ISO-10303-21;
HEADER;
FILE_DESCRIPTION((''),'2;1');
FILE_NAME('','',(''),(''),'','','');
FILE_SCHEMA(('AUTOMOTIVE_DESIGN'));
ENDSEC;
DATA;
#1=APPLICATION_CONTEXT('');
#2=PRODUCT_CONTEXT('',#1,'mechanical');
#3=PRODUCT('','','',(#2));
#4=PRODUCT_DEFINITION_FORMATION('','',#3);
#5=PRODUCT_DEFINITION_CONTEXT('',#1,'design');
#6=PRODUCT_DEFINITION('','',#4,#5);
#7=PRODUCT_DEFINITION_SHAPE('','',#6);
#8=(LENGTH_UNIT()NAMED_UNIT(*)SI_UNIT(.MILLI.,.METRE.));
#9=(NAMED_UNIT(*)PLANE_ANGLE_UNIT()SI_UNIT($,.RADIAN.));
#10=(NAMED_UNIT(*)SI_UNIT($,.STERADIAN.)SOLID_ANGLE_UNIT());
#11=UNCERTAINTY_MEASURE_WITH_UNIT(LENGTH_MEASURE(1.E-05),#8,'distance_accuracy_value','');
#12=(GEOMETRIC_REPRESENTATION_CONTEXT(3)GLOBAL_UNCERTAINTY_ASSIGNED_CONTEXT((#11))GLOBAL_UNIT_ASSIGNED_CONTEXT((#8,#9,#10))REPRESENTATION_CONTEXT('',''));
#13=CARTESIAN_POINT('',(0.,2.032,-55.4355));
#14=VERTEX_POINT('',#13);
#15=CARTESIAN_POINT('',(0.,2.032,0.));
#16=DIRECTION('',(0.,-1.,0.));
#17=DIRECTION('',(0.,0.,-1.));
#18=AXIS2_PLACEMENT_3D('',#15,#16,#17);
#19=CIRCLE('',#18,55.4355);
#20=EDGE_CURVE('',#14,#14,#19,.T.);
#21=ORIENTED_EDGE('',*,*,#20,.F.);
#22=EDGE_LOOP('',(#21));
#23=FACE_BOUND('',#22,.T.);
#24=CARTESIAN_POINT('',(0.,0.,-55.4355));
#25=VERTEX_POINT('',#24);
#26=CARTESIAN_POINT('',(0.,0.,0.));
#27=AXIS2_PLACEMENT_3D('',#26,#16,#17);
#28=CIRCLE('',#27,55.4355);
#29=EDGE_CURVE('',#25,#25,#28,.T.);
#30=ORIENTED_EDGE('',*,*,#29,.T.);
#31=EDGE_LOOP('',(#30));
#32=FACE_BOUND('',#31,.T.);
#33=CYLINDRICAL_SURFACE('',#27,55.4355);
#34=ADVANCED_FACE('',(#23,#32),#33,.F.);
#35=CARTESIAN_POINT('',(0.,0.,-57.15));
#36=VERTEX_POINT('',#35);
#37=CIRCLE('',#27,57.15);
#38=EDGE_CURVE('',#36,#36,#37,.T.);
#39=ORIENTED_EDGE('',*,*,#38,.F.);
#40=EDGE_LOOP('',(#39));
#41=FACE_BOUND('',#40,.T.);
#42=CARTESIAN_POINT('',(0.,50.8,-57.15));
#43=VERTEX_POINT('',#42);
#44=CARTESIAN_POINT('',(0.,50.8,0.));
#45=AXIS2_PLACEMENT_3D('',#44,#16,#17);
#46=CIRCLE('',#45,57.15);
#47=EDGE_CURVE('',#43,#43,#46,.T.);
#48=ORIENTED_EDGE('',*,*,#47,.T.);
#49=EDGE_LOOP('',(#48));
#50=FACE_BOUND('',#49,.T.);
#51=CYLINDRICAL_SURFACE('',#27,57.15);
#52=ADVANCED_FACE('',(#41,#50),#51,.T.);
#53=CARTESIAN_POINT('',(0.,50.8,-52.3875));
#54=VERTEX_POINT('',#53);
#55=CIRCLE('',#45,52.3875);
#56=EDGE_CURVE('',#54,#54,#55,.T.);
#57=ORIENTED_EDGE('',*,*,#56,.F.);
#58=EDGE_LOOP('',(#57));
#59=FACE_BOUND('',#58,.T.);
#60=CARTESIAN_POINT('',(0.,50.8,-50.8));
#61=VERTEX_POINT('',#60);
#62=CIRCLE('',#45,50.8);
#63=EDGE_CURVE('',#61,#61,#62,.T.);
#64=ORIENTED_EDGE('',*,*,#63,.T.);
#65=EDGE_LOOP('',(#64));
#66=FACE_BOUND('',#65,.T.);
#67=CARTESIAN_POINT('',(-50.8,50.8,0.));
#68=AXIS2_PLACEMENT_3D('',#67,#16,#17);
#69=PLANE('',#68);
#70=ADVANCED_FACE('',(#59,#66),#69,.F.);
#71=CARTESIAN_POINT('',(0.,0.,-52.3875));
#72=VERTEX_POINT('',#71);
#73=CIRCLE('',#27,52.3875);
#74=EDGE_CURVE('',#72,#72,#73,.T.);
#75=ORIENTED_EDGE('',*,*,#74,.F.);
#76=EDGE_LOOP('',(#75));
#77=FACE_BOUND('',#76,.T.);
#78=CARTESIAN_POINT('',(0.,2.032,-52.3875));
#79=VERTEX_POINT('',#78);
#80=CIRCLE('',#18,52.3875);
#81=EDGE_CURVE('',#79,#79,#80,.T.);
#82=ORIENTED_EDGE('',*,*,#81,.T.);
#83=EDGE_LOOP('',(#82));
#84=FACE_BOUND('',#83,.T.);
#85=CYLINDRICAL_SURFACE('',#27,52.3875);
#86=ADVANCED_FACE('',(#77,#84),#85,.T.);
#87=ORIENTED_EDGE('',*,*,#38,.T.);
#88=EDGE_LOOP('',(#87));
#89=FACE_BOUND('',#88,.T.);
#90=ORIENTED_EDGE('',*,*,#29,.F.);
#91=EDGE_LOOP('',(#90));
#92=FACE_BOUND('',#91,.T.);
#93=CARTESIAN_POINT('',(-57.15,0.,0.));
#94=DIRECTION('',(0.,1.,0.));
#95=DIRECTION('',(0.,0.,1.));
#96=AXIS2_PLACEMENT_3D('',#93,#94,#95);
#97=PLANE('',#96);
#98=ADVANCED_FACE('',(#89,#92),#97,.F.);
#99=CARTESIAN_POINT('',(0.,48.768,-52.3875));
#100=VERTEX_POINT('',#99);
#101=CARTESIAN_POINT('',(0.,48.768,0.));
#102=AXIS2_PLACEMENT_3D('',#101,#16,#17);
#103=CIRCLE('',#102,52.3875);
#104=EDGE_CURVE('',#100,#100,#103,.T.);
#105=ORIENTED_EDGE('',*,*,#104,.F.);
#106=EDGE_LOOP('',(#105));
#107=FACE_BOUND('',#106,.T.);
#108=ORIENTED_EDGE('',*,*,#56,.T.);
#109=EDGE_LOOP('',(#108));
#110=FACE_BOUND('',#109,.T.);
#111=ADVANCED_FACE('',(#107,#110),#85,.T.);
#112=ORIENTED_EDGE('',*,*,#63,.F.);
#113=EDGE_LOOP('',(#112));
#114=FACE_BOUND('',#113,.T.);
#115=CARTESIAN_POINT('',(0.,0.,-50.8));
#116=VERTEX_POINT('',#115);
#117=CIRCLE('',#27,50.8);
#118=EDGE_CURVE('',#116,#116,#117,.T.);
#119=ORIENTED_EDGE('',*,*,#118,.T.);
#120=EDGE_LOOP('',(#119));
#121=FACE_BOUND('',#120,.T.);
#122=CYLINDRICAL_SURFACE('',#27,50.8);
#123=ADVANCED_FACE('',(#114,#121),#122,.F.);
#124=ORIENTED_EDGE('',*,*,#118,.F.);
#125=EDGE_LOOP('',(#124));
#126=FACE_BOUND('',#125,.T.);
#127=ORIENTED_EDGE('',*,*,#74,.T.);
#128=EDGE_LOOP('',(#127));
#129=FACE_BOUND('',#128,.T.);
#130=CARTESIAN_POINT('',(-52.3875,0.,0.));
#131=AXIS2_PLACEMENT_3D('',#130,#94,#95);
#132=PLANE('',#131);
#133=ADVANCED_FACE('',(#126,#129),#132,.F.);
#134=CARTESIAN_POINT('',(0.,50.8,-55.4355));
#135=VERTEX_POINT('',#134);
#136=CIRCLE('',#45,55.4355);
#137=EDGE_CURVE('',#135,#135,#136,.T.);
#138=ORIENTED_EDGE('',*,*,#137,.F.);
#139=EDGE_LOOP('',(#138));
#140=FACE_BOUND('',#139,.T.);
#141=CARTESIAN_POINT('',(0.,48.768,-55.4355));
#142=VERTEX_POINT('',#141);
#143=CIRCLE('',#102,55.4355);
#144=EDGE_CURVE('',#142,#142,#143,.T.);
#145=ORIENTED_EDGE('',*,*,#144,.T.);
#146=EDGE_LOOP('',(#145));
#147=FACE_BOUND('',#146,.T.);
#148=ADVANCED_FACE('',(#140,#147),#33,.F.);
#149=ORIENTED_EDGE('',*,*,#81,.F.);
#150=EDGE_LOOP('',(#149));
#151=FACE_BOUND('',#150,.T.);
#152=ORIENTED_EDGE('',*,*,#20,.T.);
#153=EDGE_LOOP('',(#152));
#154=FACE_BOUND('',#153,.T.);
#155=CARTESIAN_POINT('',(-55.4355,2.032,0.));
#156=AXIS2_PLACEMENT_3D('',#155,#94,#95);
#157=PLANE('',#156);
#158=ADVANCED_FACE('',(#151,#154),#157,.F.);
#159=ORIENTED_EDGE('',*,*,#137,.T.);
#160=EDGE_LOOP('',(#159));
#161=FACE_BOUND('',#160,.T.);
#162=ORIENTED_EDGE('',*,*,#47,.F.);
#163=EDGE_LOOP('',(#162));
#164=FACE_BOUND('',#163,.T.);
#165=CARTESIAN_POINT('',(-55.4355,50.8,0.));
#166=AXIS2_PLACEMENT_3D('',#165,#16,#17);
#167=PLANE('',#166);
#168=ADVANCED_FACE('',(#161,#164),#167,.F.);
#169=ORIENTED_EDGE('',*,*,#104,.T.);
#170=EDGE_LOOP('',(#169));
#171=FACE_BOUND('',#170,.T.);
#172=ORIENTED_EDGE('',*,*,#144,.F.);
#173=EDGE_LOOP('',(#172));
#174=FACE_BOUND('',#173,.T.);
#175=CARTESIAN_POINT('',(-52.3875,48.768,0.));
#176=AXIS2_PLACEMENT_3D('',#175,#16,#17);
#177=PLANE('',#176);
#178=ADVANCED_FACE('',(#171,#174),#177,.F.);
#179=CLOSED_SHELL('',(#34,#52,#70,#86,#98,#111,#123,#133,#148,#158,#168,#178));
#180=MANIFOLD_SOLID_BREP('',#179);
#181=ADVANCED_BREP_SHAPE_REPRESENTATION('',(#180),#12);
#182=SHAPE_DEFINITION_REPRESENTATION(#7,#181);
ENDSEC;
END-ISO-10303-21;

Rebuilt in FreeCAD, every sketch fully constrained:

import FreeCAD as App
import Part
import Sketcher

V = App.Vector
Q = App.Units.Quantity

doc = App.newDocument("Part")
body = doc.addObject("PartDesign::Body", "Body")

# Sketch on XY plane
sketch1 = body.newObject("Sketcher::SketchObject", "Sketch")
sketch1.AttachmentSupport = (doc.getObject("XY_Plane"), [""])
sketch1.MapMode = "FlatFace"
sketch1.addGeometry([
    Part.LineSegment(V(-50.8, 0, 0), V(-50.8, 50.8, 0)),  # 0
    Part.LineSegment(V(-50.8, 50.8, 0), V(-52.4, 50.8, 0)),  # 1
    Part.LineSegment(V(-52.4, 50.8, 0), V(-52.4, 48.8, 0)),  # 2
    Part.LineSegment(V(-52.4, 48.8, 0), V(-55.4, 48.8, 0)),  # 3
    Part.LineSegment(V(-55.4, 48.8, 0), V(-55.4, 50.8, 0)),  # 4
    Part.LineSegment(V(-55.4, 50.8, 0), V(-57.1, 50.8, 0)),  # 5
    Part.LineSegment(V(-57.1, 50.8, 0), V(-57.1, 0, 0)),  # 6
    Part.LineSegment(V(-57.1, 0, 0), V(-55.4, 0, 0)),  # 7
    Part.LineSegment(V(-55.4, 0, 0), V(-55.4, 2, 0)),  # 8
    Part.LineSegment(V(-55.4, 2, 0), V(-52.4, 2, 0)),  # 9
    Part.LineSegment(V(-52.4, 2, 0), V(-52.4, 0, 0)),  # 10
    Part.LineSegment(V(-52.4, 0, 0), V(-50.8, 0, 0)),  # 11
], False)
sketch1.addConstraint([
    Sketcher.Constraint("Coincident", 0, 2, 1, 1),
    Sketcher.Constraint("Coincident", 1, 2, 2, 1),
    Sketcher.Constraint("Coincident", 2, 2, 3, 1),
    Sketcher.Constraint("Coincident", 3, 2, 4, 1),
    Sketcher.Constraint("Coincident", 4, 2, 5, 1),
    Sketcher.Constraint("Coincident", 5, 2, 6, 1),
    Sketcher.Constraint("Coincident", 6, 2, 7, 1),
    Sketcher.Constraint("Coincident", 7, 2, 8, 1),
    Sketcher.Constraint("Coincident", 8, 2, 9, 1),
    Sketcher.Constraint("Coincident", 9, 2, 10, 1),
    Sketcher.Constraint("Coincident", 10, 2, 11, 1),
    Sketcher.Constraint("Coincident", 11, 2, 0, 1),
    Sketcher.Constraint("Vertical", 0),
    Sketcher.Constraint("Horizontal", 1),
    Sketcher.Constraint("Vertical", 2),
    Sketcher.Constraint("Horizontal", 3),
    Sketcher.Constraint("Vertical", 4),
    Sketcher.Constraint("Horizontal", 5),
    Sketcher.Constraint("Vertical", 6),
    Sketcher.Constraint("Horizontal", 7),
    Sketcher.Constraint("Vertical", 8),
    Sketcher.Constraint("Horizontal", 9),
    Sketcher.Constraint("Vertical", 10),
    Sketcher.Constraint("Horizontal", 11),
    Sketcher.Constraint("PointOnObject", 6, 2, -1),
    Sketcher.Constraint("PointOnObject", 10, 2, -1),
    Sketcher.Constraint("Horizontal", 1, 2, 4, 2),
    Sketcher.Constraint("Vertical", 4, 2, 7, 2),
    Sketcher.Constraint("Vertical", 2, 2, 9, 2),
    Sketcher.Constraint("Equal", 4, 8),
    Sketcher.Constraint("DistanceY", 0, 1, 0, 2, Q("2 in")),
    Sketcher.Constraint("DistanceX", 0, 2, -1, 1, Q("2 in")),
    Sketcher.Constraint("DistanceX", 3, 2, 3, 1, Q("0.12 in")),
    Sketcher.Constraint("DistanceY", 2, 2, 2, 1, Q("0.08 in")),
    Sketcher.Constraint("DistanceX", 1, 2, 1, 1, Q("0.0625 in")),
    Sketcher.Constraint("DistanceX", 5, 2, -1, 1, Q("2.25 in")),
])
revolution = body.newObject("PartDesign::Revolution", "Revolution")
revolution.Profile = sketch1
revolution.ReferenceAxis = (sketch1, ["V_Axis"])
revolution.Angle = 360

doc.recompute()
